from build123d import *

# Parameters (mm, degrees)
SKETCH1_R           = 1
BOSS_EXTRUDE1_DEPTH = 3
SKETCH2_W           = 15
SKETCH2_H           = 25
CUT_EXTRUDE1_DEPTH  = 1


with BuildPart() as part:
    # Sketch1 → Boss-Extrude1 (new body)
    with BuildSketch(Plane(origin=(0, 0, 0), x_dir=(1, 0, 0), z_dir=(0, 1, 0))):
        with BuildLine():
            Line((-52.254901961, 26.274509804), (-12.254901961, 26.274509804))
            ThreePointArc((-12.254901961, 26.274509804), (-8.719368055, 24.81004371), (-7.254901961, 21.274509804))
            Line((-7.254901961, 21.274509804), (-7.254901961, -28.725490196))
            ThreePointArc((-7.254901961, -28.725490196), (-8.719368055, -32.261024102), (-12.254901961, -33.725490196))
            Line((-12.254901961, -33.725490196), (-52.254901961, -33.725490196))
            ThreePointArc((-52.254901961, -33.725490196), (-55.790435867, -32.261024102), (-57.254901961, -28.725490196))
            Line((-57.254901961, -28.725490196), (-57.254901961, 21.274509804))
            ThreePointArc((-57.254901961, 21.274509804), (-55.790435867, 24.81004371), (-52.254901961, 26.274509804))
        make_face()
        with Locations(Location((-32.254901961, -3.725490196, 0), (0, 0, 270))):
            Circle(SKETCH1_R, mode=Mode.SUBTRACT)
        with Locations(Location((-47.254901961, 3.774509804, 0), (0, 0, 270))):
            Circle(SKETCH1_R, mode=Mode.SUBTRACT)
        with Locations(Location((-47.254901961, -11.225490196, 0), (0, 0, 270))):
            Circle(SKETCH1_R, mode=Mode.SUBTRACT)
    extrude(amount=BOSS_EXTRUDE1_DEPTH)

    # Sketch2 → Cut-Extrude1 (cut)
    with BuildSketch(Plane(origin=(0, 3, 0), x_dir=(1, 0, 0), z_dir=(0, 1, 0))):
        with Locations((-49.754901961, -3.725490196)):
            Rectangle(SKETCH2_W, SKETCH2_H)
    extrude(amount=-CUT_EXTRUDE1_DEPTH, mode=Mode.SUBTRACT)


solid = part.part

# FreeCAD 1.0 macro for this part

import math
import FreeCAD as App
import Part
import Sketcher

V = App.Vector
Q = App.Units.Quantity

doc = App.newDocument("Part")
body = doc.addObject("PartDesign::Body", "Body")

# Sketch on XZ plane
sketch1 = doc.addObject("Sketcher::SketchObject", "Sketch")
body.addObject(sketch1)
sketch1.AttachmentSupport = (doc.XZ_Plane, [""])
sketch1.MapMode = "FlatFace"
sketch1.addGeometry(Part.LineSegment(V(-12.3, -26.3, 0), V(-52.3, -26.3, 0)), False)
sketch1.addGeometry(Part.ArcOfCircle(Part.Circle(V(-52.3, -21.3, 0), V(0, 0, 1), 5), math.radians(180), math.radians(270)), False)
sketch1.addGeometry(Part.LineSegment(V(-57.3, -21.3, 0), V(-57.3, 28.7, 0)), False)
sketch1.addGeometry(Part.ArcOfCircle(Part.Circle(V(-52.3, 28.7, 0), V(0, 0, 1), 5), math.radians(90), math.radians(180)), False)
sketch1.addGeometry(Part.LineSegment(V(-52.3, 33.7, 0), V(-12.3, 33.7, 0)), False)
sketch1.addGeometry(Part.ArcOfCircle(Part.Circle(V(-12.3, 28.7, 0), V(0, 0, 1), 5), math.radians(0), math.radians(90)), False)
sketch1.addGeometry(Part.LineSegment(V(-7.3, 28.7, 0), V(-7.3, -21.3, 0)), False)
sketch1.addGeometry(Part.ArcOfCircle(Part.Circle(V(-12.3, -21.3, 0), V(0, 0, 1), 5), math.radians(-90), math.radians(0)), False)
sketch1.addGeometry(Part.Circle(V(-47.3, 11.2, 0), V(0, 0, 1), 1), False)
sketch1.addGeometry(Part.Circle(V(-32.3, 3.7, 0), V(0, 0, 1), 1), False)
sketch1.addGeometry(Part.Circle(V(-47.3, -3.8, 0), V(0, 0, 1), 1), False)
sketch1.addConstraint(Sketcher.Constraint("Tangent", 0, 2, 1, 2))
sketch1.addConstraint(Sketcher.Constraint("Tangent", 1, 1, 2, 1))
sketch1.addConstraint(Sketcher.Constraint("Tangent", 2, 2, 3, 2))
sketch1.addConstraint(Sketcher.Constraint("Tangent", 3, 1, 4, 1))
sketch1.addConstraint(Sketcher.Constraint("Tangent", 4, 2, 5, 2))
sketch1.addConstraint(Sketcher.Constraint("Tangent", 5, 1, 6, 1))
sketch1.addConstraint(Sketcher.Constraint("Tangent", 6, 2, 7, 2))
sketch1.addConstraint(Sketcher.Constraint("Tangent", 7, 1, 0, 1))
sketch1.addConstraint(Sketcher.Constraint("Horizontal", 0))
sketch1.addConstraint(Sketcher.Constraint("Vertical", 2))
sketch1.addConstraint(Sketcher.Constraint("Horizontal", 4))
sketch1.addConstraint(Sketcher.Constraint("Vertical", 6))
sketch1.addConstraint(Sketcher.Constraint("Equal", 1, 3))
sketch1.addConstraint(Sketcher.Constraint("Equal", 3, 5))
sketch1.addConstraint(Sketcher.Constraint("Equal", 5, 7))
sketch1.addConstraint(Sketcher.Constraint("Equal", 8, 9))
sketch1.addConstraint(Sketcher.Constraint("Equal", 9, 10))
sketch1.addConstraint(Sketcher.Constraint("Vertical", 8, 3, 10, 3))
sketch1.addConstraint(Sketcher.Constraint("Diameter", 8, Q("2 mm")))
sketch1.addConstraint(Sketcher.Constraint("Radius", 1, Q("5 mm")))
sketch1.addConstraint(Sketcher.Constraint("DistanceX", 0, 2, 0, 1, Q("40 mm")))
sketch1.addConstraint(Sketcher.Constraint("DistanceY", 2, 1, 2, 2, Q("50 mm")))
sketch1.addConstraint(Sketcher.Constraint("DistanceX", 3, 3, 8, 3, Q("5 mm")))
sketch1.addConstraint(Sketcher.Constraint("DistanceX", 8, 3, 9, 3, Q("15 mm")))
sketch1.addConstraint(Sketcher.Constraint("DistanceY", 1, 3, 9, 3, Q("25 mm")))
sketch1.addConstraint(Sketcher.Constraint("DistanceY", 10, 3, 8, 3, Q("15 mm")))
sketch1.addConstraint(Sketcher.Constraint("DistanceY", 8, 3, 3, 3, Q("17.5 mm")))
sketch1.addConstraint(Sketcher.Constraint("DistanceX", 1, 3, -1, 1, Q("52.254902 mm")))
sketch1.addConstraint(Sketcher.Constraint("DistanceY", 1, 3, -1, 1, Q("21.27451 mm")))
pad1 = doc.addObject("PartDesign::Pad", "Pad")
body.addObject(pad1)
pad1.Profile = sketch1
pad1.Length = 3
pad1.Reversed = True

# Sketch on XZ plane
sketch2 = doc.addObject("Sketcher::SketchObject", "Sketch001")
body.addObject(sketch2)
sketch2.AttachmentSupport = (doc.XZ_Plane, [""])
sketch2.MapMode = "FlatFace"
sketch2.AttachmentOffset = App.Placement(V(0, 0, -3), App.Rotation())
sketch2.addGeometry(Part.LineSegment(V(-57, -9, 0), V(-57, 16, 0)), False)
sketch2.addGeometry(Part.LineSegment(V(-57, 16, 0), V(-42, 16, 0)), False)
sketch2.addGeometry(Part.LineSegment(V(-42, 16, 0), V(-42, -9, 0)), False)
sketch2.addGeometry(Part.LineSegment(V(-42, -9, 0), V(-57, -9, 0)), False)
sketch2.addConstraint(Sketcher.Constraint("Coincident", 0, 2, 1, 1))
sketch2.addConstraint(Sketcher.Constraint("Coincident", 1, 2, 2, 1))
sketch2.addConstraint(Sketcher.Constraint("Coincident", 2, 2, 3, 1))
sketch2.addConstraint(Sketcher.Constraint("Coincident", 3, 2, 0, 1))
sketch2.addConstraint(Sketcher.Constraint("Vertical", 0))
sketch2.addConstraint(Sketcher.Constraint("Horizontal", 1))
sketch2.addConstraint(Sketcher.Constraint("Vertical", 2))
sketch2.addConstraint(Sketcher.Constraint("Horizontal", 3))
sketch2.addConstraint(Sketcher.Constraint("DistanceX", 1, 1, 1, 2, Q("15 mm")))
sketch2.addConstraint(Sketcher.Constraint("DistanceY", 0, 1, 0, 2, Q("25 mm")))
sketch2.addConstraint(Sketcher.Constraint("DistanceX", 0, 2, -1, 1, Q("57.254902 mm")))
sketch2.addConstraint(Sketcher.Constraint("DistanceY", -1, 1, 0, 2, Q("16.22549 mm")))
pocket1 = doc.addObject("PartDesign::Pocket", "Pocket")
body.addObject(pocket1)
pocket1.Profile = sketch2
pocket1.Length = 1
pocket1.Reversed = True

doc.recompute()
